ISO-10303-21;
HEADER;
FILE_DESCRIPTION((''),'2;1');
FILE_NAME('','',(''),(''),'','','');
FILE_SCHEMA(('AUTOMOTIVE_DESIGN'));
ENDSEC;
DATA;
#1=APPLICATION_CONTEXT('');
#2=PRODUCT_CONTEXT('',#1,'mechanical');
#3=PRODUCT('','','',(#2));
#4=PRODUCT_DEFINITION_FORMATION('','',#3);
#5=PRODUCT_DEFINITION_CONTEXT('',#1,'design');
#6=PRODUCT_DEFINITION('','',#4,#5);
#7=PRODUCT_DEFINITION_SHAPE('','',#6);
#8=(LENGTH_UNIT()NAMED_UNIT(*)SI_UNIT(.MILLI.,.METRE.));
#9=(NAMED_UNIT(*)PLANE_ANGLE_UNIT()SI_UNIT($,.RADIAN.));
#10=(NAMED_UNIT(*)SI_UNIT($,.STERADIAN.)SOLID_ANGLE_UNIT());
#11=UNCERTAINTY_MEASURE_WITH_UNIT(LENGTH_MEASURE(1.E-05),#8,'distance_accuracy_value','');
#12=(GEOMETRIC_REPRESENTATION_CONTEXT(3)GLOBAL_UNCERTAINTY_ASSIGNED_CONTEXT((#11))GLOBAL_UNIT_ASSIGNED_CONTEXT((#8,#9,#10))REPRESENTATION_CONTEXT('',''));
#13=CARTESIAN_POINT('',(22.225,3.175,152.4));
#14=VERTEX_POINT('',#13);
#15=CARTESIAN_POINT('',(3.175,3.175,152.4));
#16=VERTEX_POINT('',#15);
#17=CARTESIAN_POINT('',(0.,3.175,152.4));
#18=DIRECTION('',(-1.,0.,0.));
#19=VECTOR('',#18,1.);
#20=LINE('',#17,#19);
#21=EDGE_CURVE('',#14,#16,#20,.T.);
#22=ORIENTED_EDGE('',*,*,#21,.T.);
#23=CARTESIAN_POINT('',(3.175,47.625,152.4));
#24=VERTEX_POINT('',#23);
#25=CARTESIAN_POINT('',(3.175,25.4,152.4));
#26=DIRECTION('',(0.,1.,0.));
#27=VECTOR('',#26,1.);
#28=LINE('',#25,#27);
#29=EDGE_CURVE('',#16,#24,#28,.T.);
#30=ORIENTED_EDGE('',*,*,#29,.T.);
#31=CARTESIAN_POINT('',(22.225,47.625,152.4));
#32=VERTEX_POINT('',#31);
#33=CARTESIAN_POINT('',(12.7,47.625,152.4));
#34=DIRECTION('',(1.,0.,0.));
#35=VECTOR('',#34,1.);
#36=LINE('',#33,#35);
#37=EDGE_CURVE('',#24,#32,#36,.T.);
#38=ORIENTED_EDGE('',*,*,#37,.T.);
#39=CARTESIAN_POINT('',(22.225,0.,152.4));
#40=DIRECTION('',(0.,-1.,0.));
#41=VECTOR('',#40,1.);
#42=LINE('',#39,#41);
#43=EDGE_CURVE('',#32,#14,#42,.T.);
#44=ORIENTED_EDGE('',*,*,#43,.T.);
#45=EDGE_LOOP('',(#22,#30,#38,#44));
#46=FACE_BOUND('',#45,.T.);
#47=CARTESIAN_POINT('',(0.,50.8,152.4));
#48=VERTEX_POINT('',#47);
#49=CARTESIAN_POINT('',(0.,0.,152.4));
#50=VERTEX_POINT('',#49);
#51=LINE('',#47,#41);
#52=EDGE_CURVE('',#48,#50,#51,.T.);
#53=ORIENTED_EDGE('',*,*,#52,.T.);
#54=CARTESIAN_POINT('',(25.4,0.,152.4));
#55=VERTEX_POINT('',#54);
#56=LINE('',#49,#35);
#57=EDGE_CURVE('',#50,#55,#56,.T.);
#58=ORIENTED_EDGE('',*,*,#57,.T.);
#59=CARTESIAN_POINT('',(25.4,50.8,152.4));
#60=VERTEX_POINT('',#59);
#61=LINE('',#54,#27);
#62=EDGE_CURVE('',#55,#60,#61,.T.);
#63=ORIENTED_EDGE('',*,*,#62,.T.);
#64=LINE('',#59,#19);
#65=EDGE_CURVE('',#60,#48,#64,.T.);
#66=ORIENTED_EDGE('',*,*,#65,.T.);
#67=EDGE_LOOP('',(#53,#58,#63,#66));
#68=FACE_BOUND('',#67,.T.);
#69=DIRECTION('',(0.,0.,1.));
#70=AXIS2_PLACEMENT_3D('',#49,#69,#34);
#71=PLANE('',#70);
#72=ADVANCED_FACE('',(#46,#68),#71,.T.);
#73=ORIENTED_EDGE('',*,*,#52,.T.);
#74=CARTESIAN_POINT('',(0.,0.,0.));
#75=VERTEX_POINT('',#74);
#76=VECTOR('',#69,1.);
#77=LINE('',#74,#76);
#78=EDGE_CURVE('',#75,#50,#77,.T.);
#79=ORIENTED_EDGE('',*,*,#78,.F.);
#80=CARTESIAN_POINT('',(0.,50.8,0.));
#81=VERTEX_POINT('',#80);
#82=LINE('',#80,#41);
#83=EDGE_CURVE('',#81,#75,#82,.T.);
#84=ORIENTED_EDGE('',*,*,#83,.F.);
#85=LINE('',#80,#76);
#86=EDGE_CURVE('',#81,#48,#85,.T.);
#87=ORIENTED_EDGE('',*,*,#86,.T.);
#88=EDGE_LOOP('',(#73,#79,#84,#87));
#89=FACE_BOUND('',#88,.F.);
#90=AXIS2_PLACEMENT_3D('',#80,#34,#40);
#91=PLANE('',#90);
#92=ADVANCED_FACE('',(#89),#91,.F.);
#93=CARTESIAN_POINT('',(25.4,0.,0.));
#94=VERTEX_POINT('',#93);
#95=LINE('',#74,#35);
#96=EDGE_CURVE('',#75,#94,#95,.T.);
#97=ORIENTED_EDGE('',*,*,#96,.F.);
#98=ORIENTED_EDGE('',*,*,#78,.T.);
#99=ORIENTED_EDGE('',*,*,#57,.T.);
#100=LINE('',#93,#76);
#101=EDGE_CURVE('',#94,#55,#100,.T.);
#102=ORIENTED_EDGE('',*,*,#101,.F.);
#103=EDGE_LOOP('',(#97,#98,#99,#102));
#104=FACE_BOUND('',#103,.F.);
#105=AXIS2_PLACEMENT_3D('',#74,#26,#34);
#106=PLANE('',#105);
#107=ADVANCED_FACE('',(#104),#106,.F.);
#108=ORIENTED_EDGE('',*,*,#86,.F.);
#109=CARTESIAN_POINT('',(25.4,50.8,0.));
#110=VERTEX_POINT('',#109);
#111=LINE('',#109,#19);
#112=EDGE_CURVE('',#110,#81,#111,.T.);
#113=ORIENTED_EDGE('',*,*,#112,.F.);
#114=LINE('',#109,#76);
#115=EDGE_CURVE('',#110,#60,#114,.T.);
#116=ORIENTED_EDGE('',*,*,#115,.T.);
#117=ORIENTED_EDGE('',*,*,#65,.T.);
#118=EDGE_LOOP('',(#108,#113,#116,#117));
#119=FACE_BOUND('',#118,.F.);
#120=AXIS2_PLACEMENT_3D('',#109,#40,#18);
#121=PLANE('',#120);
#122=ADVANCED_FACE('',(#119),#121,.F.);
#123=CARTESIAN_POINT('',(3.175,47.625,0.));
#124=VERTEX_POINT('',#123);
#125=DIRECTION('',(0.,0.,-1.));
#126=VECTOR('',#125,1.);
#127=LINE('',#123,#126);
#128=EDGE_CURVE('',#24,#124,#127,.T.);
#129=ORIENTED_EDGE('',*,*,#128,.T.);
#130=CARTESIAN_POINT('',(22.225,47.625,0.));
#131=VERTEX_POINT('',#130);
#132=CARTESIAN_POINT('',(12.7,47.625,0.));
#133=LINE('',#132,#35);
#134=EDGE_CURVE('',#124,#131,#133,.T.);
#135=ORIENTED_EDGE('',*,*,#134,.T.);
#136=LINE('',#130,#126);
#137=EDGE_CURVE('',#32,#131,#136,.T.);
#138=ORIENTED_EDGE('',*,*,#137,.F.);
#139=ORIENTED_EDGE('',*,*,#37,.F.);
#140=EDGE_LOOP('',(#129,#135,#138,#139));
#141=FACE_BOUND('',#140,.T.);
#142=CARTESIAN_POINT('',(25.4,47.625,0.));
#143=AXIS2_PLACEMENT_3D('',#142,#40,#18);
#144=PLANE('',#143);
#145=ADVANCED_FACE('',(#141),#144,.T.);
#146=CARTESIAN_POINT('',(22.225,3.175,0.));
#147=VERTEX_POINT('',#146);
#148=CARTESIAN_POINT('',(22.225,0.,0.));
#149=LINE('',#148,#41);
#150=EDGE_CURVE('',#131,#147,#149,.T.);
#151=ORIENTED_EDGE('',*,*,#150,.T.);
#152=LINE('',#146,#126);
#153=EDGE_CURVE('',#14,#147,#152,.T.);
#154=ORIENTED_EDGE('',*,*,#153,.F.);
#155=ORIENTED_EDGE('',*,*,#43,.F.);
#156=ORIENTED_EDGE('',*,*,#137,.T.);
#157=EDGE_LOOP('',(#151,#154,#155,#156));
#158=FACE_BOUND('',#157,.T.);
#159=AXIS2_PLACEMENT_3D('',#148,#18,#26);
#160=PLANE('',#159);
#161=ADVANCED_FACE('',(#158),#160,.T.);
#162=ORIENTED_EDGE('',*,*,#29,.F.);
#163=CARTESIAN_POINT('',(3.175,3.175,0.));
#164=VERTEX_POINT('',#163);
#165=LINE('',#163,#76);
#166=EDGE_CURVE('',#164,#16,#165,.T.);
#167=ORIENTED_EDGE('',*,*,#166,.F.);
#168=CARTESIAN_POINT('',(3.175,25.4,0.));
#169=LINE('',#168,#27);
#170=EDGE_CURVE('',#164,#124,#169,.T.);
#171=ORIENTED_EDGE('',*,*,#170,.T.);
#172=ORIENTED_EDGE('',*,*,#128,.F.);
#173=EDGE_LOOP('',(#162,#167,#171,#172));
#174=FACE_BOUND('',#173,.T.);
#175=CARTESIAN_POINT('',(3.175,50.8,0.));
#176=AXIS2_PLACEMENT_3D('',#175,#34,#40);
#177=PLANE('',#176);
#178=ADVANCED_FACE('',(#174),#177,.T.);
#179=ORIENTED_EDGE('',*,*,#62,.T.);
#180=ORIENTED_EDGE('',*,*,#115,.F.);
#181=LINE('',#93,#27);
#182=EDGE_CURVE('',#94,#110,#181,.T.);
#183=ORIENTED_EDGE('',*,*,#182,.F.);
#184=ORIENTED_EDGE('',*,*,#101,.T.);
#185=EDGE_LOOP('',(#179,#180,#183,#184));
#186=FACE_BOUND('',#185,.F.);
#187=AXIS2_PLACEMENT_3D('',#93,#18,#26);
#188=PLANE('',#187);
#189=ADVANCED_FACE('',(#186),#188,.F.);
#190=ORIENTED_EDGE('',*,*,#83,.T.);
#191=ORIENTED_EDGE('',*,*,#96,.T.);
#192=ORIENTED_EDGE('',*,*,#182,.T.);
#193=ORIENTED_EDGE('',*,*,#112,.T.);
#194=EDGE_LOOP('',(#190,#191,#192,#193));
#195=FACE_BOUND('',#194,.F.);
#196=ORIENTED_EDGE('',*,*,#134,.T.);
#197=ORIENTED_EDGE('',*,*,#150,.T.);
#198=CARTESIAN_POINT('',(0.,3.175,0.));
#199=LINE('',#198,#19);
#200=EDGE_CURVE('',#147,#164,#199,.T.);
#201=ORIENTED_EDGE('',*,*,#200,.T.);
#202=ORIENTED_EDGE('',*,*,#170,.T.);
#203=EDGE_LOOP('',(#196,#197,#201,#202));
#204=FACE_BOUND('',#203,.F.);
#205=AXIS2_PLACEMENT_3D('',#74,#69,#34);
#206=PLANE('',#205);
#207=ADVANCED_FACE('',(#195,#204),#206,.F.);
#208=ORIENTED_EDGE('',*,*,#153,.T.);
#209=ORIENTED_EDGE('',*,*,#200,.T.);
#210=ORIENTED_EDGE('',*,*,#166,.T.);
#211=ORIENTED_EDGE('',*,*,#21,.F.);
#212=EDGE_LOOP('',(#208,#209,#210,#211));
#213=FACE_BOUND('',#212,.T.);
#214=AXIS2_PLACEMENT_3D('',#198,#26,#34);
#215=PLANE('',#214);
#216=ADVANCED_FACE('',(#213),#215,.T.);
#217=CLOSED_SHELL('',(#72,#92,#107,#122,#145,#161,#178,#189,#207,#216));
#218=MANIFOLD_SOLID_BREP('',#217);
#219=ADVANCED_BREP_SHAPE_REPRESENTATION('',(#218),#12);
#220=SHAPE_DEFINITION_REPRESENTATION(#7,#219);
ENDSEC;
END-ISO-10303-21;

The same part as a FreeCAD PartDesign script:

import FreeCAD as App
import Part
import Sketcher

V = App.Vector
Q = App.Units.Quantity


def faces_at(feature, points):
    """Names of the faces that lie closest to the given points."""
    faces = feature.Shape.Faces
    near = lambda p: min(range(len(faces)), key=lambda i: faces[i].distToShape(Part.Vertex(*p))[0])
    return sorted({f"Face{near(p) + 1}" for p in points})

doc = App.newDocument("Part")
body = doc.addObject("PartDesign::Body", "Body")

# Sketch on XY plane
sketch1 = body.newObject("Sketcher::SketchObject", "Sketch")
sketch1.AttachmentSupport = (doc.getObject("XY_Plane"), [""])
sketch1.MapMode = "FlatFace"
sketch1.addGeometry(Part.LineSegment(V(0, 51, 0), V(0, 0, 0)), False)
sketch1.addGeometry(Part.LineSegment(V(0, 0, 0), V(25, 0, 0)), False)
sketch1.addGeometry(Part.LineSegment(V(25, 0, 0), V(25, 51, 0)), False)
sketch1.addGeometry(Part.LineSegment(V(25, 51, 0), V(0, 51, 0)), False)
sketch1.addConstraint(Sketcher.Constraint("Coincident", 0, 2, 1, 1))
sketch1.addConstraint(Sketcher.Constraint("Coincident", 1, 2, 2, 1))
sketch1.addConstraint(Sketcher.Constraint("Coincident", 2, 2, 3, 1))
sketch1.addConstraint(Sketcher.Constraint("Coincident", 3, 2, 0, 1))
sketch1.addConstraint(Sketcher.Constraint("Vertical", 0))
sketch1.addConstraint(Sketcher.Constraint("Horizontal", 1))
sketch1.addConstraint(Sketcher.Constraint("Vertical", 2))
sketch1.addConstraint(Sketcher.Constraint("Horizontal", 3))
sketch1.addConstraint(Sketcher.Constraint("Coincident", 0, 2, -1, 1))
sketch1.addConstraint(Sketcher.Constraint("DistanceX", 1, 1, 1, 2, Q("1 in")))
sketch1.addConstraint(Sketcher.Constraint("DistanceY", 0, 2, 0, 1, Q("2 in")))
pad1 = body.newObject("PartDesign::Pad", "Pad")
pad1.Profile = sketch1
pad1.Length = Q("6 in")
doc.recompute()

thickness = body.newObject("PartDesign::Thickness", "Thickness")
thickness.Base = (pad1, faces_at(pad1, [(8.467, 33.867, 0), (8.467, 33.867, 152.4)]))
thickness.Value = Q("0.125 in")
thickness.Reversed = True
thickness.Join = "Intersection"

doc.recompute()
